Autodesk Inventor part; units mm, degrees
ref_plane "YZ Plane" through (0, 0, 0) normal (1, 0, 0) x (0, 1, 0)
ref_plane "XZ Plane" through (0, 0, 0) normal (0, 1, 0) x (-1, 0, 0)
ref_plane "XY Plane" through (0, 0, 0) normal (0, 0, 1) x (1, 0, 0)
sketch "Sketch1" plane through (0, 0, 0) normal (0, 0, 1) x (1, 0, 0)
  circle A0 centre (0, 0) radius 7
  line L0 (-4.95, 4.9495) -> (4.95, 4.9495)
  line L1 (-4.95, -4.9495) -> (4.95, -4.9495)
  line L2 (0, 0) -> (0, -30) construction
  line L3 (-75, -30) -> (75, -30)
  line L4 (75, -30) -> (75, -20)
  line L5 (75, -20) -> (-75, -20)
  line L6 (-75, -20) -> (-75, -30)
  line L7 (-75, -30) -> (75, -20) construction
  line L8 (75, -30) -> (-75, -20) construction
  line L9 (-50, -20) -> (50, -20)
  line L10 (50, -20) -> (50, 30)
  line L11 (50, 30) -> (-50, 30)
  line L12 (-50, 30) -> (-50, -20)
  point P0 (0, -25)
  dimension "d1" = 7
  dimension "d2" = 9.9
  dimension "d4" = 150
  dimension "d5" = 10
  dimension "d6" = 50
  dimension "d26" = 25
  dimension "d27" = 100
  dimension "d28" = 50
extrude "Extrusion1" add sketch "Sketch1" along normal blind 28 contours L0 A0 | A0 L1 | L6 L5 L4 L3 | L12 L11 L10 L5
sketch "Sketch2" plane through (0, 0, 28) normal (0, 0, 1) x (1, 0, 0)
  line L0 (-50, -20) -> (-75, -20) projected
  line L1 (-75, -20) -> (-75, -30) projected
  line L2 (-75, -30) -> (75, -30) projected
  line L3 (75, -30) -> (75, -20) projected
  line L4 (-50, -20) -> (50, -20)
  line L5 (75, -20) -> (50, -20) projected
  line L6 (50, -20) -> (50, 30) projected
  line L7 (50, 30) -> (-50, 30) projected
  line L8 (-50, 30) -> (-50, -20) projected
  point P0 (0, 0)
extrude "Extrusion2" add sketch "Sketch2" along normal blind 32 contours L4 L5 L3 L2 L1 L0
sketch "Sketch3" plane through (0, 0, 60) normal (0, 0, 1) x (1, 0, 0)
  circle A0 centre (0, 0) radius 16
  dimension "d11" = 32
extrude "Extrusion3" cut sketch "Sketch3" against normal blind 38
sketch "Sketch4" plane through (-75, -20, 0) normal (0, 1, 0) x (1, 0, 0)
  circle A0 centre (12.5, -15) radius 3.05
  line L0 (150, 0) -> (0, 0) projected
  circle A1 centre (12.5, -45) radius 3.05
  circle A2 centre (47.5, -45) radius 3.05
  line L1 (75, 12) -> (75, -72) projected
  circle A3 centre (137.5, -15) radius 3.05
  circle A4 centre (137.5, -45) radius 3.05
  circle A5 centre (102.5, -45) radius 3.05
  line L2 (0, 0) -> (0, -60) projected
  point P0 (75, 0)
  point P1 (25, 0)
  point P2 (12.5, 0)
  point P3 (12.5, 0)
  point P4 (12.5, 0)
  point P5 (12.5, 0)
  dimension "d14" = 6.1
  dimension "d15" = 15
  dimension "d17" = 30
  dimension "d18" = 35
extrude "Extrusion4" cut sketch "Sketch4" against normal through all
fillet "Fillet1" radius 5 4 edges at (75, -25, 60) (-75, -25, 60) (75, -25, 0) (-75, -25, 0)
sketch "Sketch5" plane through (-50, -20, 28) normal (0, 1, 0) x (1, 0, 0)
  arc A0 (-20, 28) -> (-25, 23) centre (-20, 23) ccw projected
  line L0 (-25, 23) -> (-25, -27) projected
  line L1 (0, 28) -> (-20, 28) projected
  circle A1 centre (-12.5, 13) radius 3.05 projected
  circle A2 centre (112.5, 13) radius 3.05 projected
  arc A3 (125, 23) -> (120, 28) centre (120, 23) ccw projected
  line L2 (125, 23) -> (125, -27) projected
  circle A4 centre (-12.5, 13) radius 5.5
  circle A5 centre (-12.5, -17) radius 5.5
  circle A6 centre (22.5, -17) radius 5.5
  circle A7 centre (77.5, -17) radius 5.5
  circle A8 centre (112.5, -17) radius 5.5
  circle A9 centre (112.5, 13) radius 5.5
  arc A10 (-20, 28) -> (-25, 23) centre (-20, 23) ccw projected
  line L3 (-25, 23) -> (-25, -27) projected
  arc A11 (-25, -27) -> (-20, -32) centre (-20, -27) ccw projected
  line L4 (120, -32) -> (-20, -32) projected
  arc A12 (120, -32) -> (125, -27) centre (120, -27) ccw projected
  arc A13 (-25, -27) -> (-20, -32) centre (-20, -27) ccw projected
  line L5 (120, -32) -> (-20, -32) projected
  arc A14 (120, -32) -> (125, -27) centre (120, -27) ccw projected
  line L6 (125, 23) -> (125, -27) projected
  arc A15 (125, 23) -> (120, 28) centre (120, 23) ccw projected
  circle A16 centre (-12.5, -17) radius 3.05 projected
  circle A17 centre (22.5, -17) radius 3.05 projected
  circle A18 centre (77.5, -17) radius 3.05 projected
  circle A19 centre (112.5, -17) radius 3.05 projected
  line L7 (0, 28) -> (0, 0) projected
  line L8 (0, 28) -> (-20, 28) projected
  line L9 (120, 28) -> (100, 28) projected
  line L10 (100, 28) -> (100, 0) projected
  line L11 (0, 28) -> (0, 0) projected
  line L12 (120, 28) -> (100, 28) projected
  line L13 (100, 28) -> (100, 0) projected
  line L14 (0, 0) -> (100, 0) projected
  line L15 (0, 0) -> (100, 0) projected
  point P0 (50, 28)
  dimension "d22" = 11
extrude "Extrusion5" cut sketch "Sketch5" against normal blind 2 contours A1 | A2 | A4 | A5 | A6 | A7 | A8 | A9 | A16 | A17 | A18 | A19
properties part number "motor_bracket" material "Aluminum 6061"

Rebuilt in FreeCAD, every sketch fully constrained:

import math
import FreeCAD as App
import Part
import Sketcher

V = App.Vector
Q = App.Units.Quantity


def edges_at(feature, points):
    """Names of the edges that pass closest to the given points."""
    edges = feature.Shape.Edges
    near = lambda p: min(range(len(edges)), key=lambda i: edges[i].distToShape(Part.Vertex(*p))[0])
    return sorted({f"Edge{near(p) + 1}" for p in points})


def add_polygon(sketch, points):
    """Adds a closed chain of lines whose ends are joined by coincident constraints."""
    first, n = sketch.GeometryCount, len(points)
    for a, b in zip(points, points[1:] + points[:1]):
        sketch.addGeometry(Part.LineSegment(App.Vector(*a, 0), App.Vector(*b, 0)), False)
    for i in range(n):
        sketch.addConstraint(Sketcher.Constraint("Coincident", first + i, 2, first + (i + 1) % n, 1))

doc = App.newDocument("Part")
body = doc.addObject("PartDesign::Body", "Body")

sketch1 = body.newObject("Sketcher::SketchObject", "Sketch")
sketch1.AttachmentSupport = (doc.getObject("XY_Plane"), [""])
sketch1.MapMode = "FlatFace"
add_polygon(sketch1, [(-50, 30), (-50, -20), (-75, -20), (-75, -30), (75, -30), (75, -20), (50, -20), (50, 30)])
sketch1.addGeometry(Part.LineSegment(V(-5, 5, 0), V(5, 5, 0)), False)
sketch1.addGeometry(Part.ArcOfCircle(Part.Circle(V(0, 0, 0), V(0, 0, 1), 7), math.radians(-45), math.radians(45)), False)
sketch1.addGeometry(Part.LineSegment(V(5, -5, 0), V(-5, -5, 0)), False)
sketch1.addGeometry(Part.ArcOfCircle(Part.Circle(V(0, 0, 0), V(0, 0, 1), 7), math.radians(135), math.radians(225)), False)
sketch1.addConstraint([
    Sketcher.Constraint("Coincident", 8, 2, 9, 2),
    Sketcher.Constraint("Coincident", 9, 1, 10, 1),
    Sketcher.Constraint("Coincident", 10, 2, 11, 2),
    Sketcher.Constraint("Coincident", 11, 1, 8, 1),
    Sketcher.Constraint("Vertical", 0),
    Sketcher.Constraint("Horizontal", 1),
    Sketcher.Constraint("Vertical", 2),
    Sketcher.Constraint("Horizontal", 3),
    Sketcher.Constraint("Vertical", 4),
    Sketcher.Constraint("Horizontal", 5),
    Sketcher.Constraint("Vertical", 6),
    Sketcher.Constraint("Horizontal", 7),
    Sketcher.Constraint("Horizontal", 8),
    Sketcher.Constraint("Horizontal", 10),
    Sketcher.Constraint("Coincident", 9, 3, -1, 1),
    Sketcher.Constraint("Coincident", 11, 3, -1, 1),
    Sketcher.Constraint("Equal", 9, 11),
    Sketcher.Constraint("Symmetric", 1, 2, 4, 2, -2),
    Sketcher.Constraint("Vertical", 8, 2, 9, 1),
    Sketcher.Constraint("Equal", 1, 5),
    Sketcher.Constraint("Radius", 9, Q("7 mm")),
    Sketcher.Constraint("DistanceX", 1, 2, 1, 1, Q("25 mm")),
    Sketcher.Constraint("DistanceX", 3, 1, 3, 2, Q("150 mm")),
    Sketcher.Constraint("DistanceY", 0, 2, 0, 1, Q("50 mm")),
    Sketcher.Constraint("DistanceY", 2, 2, 2, 1, Q("10 mm")),
    Sketcher.Constraint("DistanceX", 8, 1, 8, 2, Q("9.9 mm")),
    Sketcher.Constraint("DistanceY", 0, 2, -1, 1, Q("20 mm")),
])
pad1 = body.newObject("PartDesign::Pad", "Pad")
pad1.Profile = sketch1
pad1.Length = 28

sketch2 = body.newObject("Sketcher::SketchObject", "Sketch001")
sketch2.AttachmentSupport = (doc.getObject("XY_Plane"), [""])
sketch2.MapMode = "FlatFace"
sketch2.AttachmentOffset = App.Placement(V(0, 0, 28), App.Rotation())
add_polygon(sketch2, [(75, -20), (-75, -20), (-75, -30), (75, -30)])
sketch2.addConstraint([
    Sketcher.Constraint("Horizontal", 0),
    Sketcher.Constraint("Vertical", 1),
    Sketcher.Constraint("Horizontal", 2),
    Sketcher.Constraint("Vertical", 3),
    Sketcher.Constraint("DistanceX", 0, 2, 0, 1, Q("150 mm")),
    Sketcher.Constraint("DistanceY", 1, 2, 1, 1, Q("10 mm")),
    Sketcher.Constraint("DistanceX", 0, 2, -1, 1, Q("75 mm")),
    Sketcher.Constraint("DistanceY", 0, 2, -1, 1, Q("20 mm")),
])
pad2 = body.newObject("PartDesign::Pad", "Pad001")
pad2.Profile = sketch2
pad2.Length = 32

sketch3 = body.newObject("Sketcher::SketchObject", "Sketch002")
sketch3.AttachmentSupport = (doc.getObject("XY_Plane"), [""])
sketch3.MapMode = "FlatFace"
sketch3.AttachmentOffset = App.Placement(V(0, 0, 60), App.Rotation())
sketch3.addGeometry(Part.Circle(V(0, 0, 0), V(0, 0, 1), 16), False)
sketch3.addConstraint([
    Sketcher.Constraint("Coincident", 0, 3, -1, 1),
    Sketcher.Constraint("Diameter", 0, Q("32 mm")),
])
pocket1 = body.newObject("PartDesign::Pocket", "Pocket")
pocket1.Profile = sketch3
pocket1.Length = 38

sketch4 = body.newObject("Sketcher::SketchObject", "Sketch003")
sketch4.AttachmentSupport = (doc.getObject("XZ_Plane"), [""])
sketch4.MapMode = "FlatFace"
sketch4.AttachmentOffset = App.Placement(V(0, 0, 20), App.Rotation())
sketch4.addGeometry([
    Part.Circle(V(-62.5, 15, 0), V(0, 0, 1), 3),
    Part.Circle(V(-62.5, 45, 0), V(0, 0, 1), 3),
    Part.Circle(V(-27.5, 45, 0), V(0, 0, 1), 3),
    Part.Circle(V(62.5, 15, 0), V(0, 0, 1), 3),
    Part.Circle(V(62.5, 45, 0), V(0, 0, 1), 3),
    Part.Circle(V(27.5, 45, 0), V(0, 0, 1), 3),
], False)
sketch4.addConstraint([
    Sketcher.Constraint("Equal", 0, 1),
    Sketcher.Constraint("Equal", 1, 2),
    Sketcher.Constraint("Equal", 2, 3),
    Sketcher.Constraint("Equal", 3, 4),
    Sketcher.Constraint("Equal", 4, 5),
    Sketcher.Constraint("Symmetric", 0, 3, 3, 3, -2),
    Sketcher.Constraint("Symmetric", 1, 3, 4, 3, -2),
    Sketcher.Constraint("Symmetric", 2, 3, 5, 3, -2),
    Sketcher.Constraint("Horizontal", 1, 3, 2, 3),
    Sketcher.Constraint("Vertical", 0, 3, 1, 3),
    Sketcher.Constraint("Diameter", 0, Q("6.1 mm")),
    Sketcher.Constraint("DistanceY", -1, 1, 0, 3, Q("15 mm")),
    Sketcher.Constraint("DistanceY", 0, 3, 1, 3, Q("30 mm")),
    Sketcher.Constraint("DistanceX", 1, 3, 2, 3, Q("35 mm")),
    Sketcher.Constraint("DistanceX", 2, 3, 3, 3, Q("90 mm")),
])
pocket2 = body.newObject("PartDesign::Pocket", "Pocket001")
pocket2.Profile = sketch4
pocket2.Type = "ThroughAll"
pocket2.Reversed = True
doc.recompute()

fillet = body.newObject("PartDesign::Fillet", "Fillet")
fillet.Base = (pocket2, edges_at(pocket2, [
    (75, -25, 60),
    (-75, -25, 60),
    (75, -25, 0),
    (-75, -25, 0),
]))
fillet.Radius = 5

sketch5 = body.newObject("Sketcher::SketchObject", "Sketch004")
sketch5.AttachmentSupport = (doc.getObject("XZ_Plane"), [""])
sketch5.MapMode = "FlatFace"
sketch5.AttachmentOffset = App.Placement(V(0, 0, 20), App.Rotation())
sketch5.addGeometry([
    Part.Circle(V(-62, 15, 0), V(0, 0, 1), 6),
    Part.Circle(V(62, 15, 0), V(0, 0, 1), 6),
    Part.Circle(V(-62, 45, 0), V(0, 0, 1), 6),
    Part.Circle(V(-28, 45, 0), V(0, 0, 1), 6),
    Part.Circle(V(28, 45, 0), V(0, 0, 1), 6),
    Part.Circle(V(62, 45, 0), V(0, 0, 1), 6),
], False)
sketch5.addConstraint([
    Sketcher.Constraint("Equal", 0, 1),
    Sketcher.Constraint("Equal", 1, 2),
    Sketcher.Constraint("Equal", 2, 3),
    Sketcher.Constraint("Equal", 3, 4),
    Sketcher.Constraint("Equal", 4, 5),
    Sketcher.Constraint("Symmetric", 0, 3, 1, 3, -2),
    Sketcher.Constraint("Symmetric", 3, 3, 4, 3, -2),
    Sketcher.Constraint("Symmetric", 2, 3, 5, 3, -2),
    Sketcher.Constraint("Horizontal", 2, 3, 3, 3),
    Sketcher.Constraint("Vertical", 0, 3, 2, 3),
    Sketcher.Constraint("Diameter", 0, Q("11 mm")),
    Sketcher.Constraint("DistanceY", -1, 1, 0, 3, Q("15 mm")),
    Sketcher.Constraint("DistanceY", -1, 1, 2, 3, Q("45 mm")),
    Sketcher.Constraint("DistanceX", 0, 3, 1, 3, Q("125 mm")),
    Sketcher.Constraint("DistanceX", 2, 3, 3, 3, Q("35 mm")),
])
pocket3 = body.newObject("PartDesign::Pocket", "Pocket002")
pocket3.Profile = sketch5
pocket3.Length = 2
pocket3.Reversed = True

doc.recompute()
